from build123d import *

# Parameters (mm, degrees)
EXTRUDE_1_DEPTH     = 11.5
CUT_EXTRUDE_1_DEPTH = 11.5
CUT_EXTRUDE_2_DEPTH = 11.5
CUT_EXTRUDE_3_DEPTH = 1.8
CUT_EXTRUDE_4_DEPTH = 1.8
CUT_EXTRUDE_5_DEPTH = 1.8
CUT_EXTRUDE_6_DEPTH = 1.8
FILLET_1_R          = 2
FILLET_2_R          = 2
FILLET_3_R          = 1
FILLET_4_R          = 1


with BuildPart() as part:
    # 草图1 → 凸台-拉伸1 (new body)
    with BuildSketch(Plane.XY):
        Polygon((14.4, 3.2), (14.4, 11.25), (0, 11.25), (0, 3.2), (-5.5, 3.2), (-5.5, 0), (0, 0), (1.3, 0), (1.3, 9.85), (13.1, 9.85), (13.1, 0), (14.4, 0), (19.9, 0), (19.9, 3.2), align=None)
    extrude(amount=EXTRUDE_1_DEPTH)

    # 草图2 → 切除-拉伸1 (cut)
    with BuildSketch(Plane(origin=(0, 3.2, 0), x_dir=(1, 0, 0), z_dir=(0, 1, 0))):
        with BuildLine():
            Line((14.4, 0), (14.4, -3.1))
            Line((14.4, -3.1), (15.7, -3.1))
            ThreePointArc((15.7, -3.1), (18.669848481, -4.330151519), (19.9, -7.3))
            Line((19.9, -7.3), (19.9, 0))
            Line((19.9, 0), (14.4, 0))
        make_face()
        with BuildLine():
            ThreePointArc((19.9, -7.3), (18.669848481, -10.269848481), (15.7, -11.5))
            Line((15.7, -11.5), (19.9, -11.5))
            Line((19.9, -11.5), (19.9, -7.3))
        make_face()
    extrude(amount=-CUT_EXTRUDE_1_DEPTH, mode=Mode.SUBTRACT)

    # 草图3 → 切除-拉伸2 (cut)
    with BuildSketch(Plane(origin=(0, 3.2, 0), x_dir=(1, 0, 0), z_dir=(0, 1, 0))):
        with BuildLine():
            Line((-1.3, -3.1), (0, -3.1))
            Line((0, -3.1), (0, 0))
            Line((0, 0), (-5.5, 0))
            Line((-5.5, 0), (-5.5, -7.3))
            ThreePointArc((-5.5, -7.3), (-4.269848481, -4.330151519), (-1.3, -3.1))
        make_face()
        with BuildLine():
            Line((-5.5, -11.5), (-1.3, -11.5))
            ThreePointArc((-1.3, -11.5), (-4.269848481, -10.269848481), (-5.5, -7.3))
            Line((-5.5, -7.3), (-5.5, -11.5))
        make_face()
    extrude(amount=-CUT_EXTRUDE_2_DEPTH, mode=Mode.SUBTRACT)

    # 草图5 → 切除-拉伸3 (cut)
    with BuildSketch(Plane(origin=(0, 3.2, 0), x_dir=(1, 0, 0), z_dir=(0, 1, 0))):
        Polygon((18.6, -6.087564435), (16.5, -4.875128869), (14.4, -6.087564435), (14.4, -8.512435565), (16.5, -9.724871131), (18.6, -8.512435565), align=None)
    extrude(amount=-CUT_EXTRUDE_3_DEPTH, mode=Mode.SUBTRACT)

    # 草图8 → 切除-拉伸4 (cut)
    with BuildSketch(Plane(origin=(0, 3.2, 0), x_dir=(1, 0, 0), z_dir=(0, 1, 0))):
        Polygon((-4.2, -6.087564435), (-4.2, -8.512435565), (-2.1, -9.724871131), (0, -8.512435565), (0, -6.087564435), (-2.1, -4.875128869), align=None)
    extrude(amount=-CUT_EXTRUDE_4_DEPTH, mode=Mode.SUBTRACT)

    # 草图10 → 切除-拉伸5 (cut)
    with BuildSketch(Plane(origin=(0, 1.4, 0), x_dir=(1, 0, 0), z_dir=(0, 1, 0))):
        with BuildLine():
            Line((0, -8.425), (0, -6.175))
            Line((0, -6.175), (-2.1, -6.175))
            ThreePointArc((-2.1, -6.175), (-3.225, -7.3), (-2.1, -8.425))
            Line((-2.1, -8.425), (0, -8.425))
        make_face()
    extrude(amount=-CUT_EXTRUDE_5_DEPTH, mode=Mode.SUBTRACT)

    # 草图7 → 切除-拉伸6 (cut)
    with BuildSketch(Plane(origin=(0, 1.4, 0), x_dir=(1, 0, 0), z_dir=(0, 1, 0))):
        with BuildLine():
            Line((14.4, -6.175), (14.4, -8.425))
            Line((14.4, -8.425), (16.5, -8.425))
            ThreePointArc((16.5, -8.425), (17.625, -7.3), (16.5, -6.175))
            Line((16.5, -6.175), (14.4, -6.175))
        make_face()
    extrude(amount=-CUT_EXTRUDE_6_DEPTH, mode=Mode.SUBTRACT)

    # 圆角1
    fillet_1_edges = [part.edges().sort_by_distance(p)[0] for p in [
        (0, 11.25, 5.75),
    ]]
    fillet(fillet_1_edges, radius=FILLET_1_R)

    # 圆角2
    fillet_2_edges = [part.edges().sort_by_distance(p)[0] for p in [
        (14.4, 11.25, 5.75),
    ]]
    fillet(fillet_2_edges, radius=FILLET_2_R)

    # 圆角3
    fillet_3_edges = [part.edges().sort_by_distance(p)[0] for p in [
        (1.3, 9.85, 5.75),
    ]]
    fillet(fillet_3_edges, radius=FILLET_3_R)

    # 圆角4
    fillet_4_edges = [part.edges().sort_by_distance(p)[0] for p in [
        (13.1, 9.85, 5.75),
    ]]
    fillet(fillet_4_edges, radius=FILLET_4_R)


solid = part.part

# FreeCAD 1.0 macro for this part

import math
import FreeCAD as App
import Part
import Sketcher
Q = App.Units.Quantity


def edges_at(feature, points):
    """Names of the edges that pass closest to the given points."""
    edges = feature.Shape.Edges
    near = lambda p: min(range(len(edges)), key=lambda i: edges[i].distToShape(Part.Vertex(*p))[0])
    return sorted({f"Edge{near(p) + 1}" for p in points})

doc = App.newDocument("Part")
body = doc.addObject("PartDesign::Body", "Body")

# Sketch on XY plane
sketch1 = doc.addObject("Sketcher::SketchObject", "Sketch")
body.addObject(sketch1)
sketch1.AttachmentSupport = (doc.XY_Plane, [""])
sketch1.MapMode = "FlatFace"
sketch1.addGeometry([
    Part.LineSegment(App.Vector(14.4, 3.2, 0), App.Vector(14.4, 11.2, 0)),  # 0
    Part.LineSegment(App.Vector(14.4, 11.2, 0), App.Vector(0, 11.2, 0)),  # 1
    Part.LineSegment(App.Vector(0, 11.2, 0), App.Vector(0, 3.2, 0)),  # 2
    Part.LineSegment(App.Vector(0, 3.2, 0), App.Vector(-5.5, 3.2, 0)),  # 3
    Part.LineSegment(App.Vector(-5.5, 3.2, 0), App.Vector(-5.5, 0, 0)),  # 4
    Part.LineSegment(App.Vector(-5.5, 0, 0), App.Vector(1.3, 0, 0)),  # 5
    Part.LineSegment(App.Vector(1.3, 0, 0), App.Vector(1.3, 9.8, 0)),  # 6
    Part.LineSegment(App.Vector(1.3, 9.8, 0), App.Vector(13.1, 9.8, 0)),  # 7
    Part.LineSegment(App.Vector(13.1, 9.8, 0), App.Vector(13.1, 0, 0)),  # 8
    Part.LineSegment(App.Vector(13.1, 0, 0), App.Vector(19.9, 0, 0)),  # 9
    Part.LineSegment(App.Vector(19.9, 0, 0), App.Vector(19.9, 3.2, 0)),  # 10
    Part.LineSegment(App.Vector(19.9, 3.2, 0), App.Vector(14.4, 3.2, 0)),  # 11
], False)
sketch1.addConstraint([
    Sketcher.Constraint("Coincident", 0, 2, 1, 1),
    Sketcher.Constraint("Coincident", 1, 2, 2, 1),
    Sketcher.Constraint("Coincident", 2, 2, 3, 1),
    Sketcher.Constraint("Coincident", 3, 2, 4, 1),
    Sketcher.Constraint("Coincident", 4, 2, 5, 1),
    Sketcher.Constraint("Coincident", 5, 2, 6, 1),
    Sketcher.Constraint("Coincident", 6, 2, 7, 1),
    Sketcher.Constraint("Coincident", 7, 2, 8, 1),
    Sketcher.Constraint("Coincident", 8, 2, 9, 1),
    Sketcher.Constraint("Coincident", 9, 2, 10, 1),
    Sketcher.Constraint("Coincident", 10, 2, 11, 1),
    Sketcher.Constraint("Coincident", 11, 2, 0, 1),
    Sketcher.Constraint("Vertical", 0),
    Sketcher.Constraint("Horizontal", 1),
    Sketcher.Constraint("Vertical", 2),
    Sketcher.Constraint("Horizontal", 3),
    Sketcher.Constraint("Vertical", 4),
    Sketcher.Constraint("Horizontal", 5),
    Sketcher.Constraint("Vertical", 6),
    Sketcher.Constraint("Horizontal", 7),
    Sketcher.Constraint("Vertical", 8),
    Sketcher.Constraint("Horizontal", 9),
    Sketcher.Constraint("Vertical", 10),
    Sketcher.Constraint("Horizontal", 11),
    Sketcher.Constraint("PointOnObject", 1, 2, -2),
    Sketcher.Constraint("PointOnObject", 4, 2, -1),
    Sketcher.Constraint("PointOnObject", 8, 2, -1),
    Sketcher.Constraint("Horizontal", 3, 2, 10, 2),
    Sketcher.Constraint("Equal", 5, 9),
    Sketcher.Constraint("Equal", 3, 11),
    Sketcher.Constraint("DistanceX", 1, 2, 1, 1, 14.4),
    Sketcher.Constraint("DistanceX", 3, 2, 3, 1, 5.5),
    Sketcher.Constraint("DistanceX", 5, 1, 5, 2, 6.8),
    Sketcher.Constraint("DistanceY", 4, 2, 4, 1, 3.2),
    Sketcher.Constraint("DistanceY", 0, 1, 0, 2, 8.05),
    Sketcher.Constraint("DistanceY", 6, 1, 6, 2, 9.85),
])
pad1 = doc.addObject("PartDesign::Pad", "Pad")
body.addObject(pad1)
pad1.Profile = sketch1
pad1.Length = 11.5

# Sketch on XZ plane
sketch2 = doc.addObject("Sketcher::SketchObject", "Sketch001")
body.addObject(sketch2)
sketch2.AttachmentSupport = (doc.XZ_Plane, [""])
sketch2.MapMode = "FlatFace"
sketch2.AttachmentOffset = App.Placement(App.Vector(0, 0, -3.2), App.Rotation())
sketch2.addGeometry([
    Part.LineSegment(App.Vector(14.4, 0, 0), App.Vector(14.4, 3.1, 0)),  # 0
    Part.LineSegment(App.Vector(14.4, 3.1, 0), App.Vector(15.7, 3.1, 0)),  # 1
    Part.ArcOfCircle(Part.Circle(App.Vector(15.7, 7.3, 0), App.Vector(0, 0, 1), 4.2), math.radians(-90), math.radians(0)),  # 2
    Part.LineSegment(App.Vector(19.9, 7.3, 0), App.Vector(19.9, 0, 0)),  # 3
    Part.LineSegment(App.Vector(19.9, 0, 0), App.Vector(14.4, 0, 0)),  # 4
    Part.ArcOfCircle(Part.Circle(App.Vector(15.7, 7.3, 0), App.Vector(0, 0, 1), 4.2), math.radians(0), math.radians(90)),  # 5
    Part.LineSegment(App.Vector(15.7, 11.5, 0), App.Vector(19.9, 11.5, 0)),  # 6
    Part.LineSegment(App.Vector(19.9, 11.5, 0), App.Vector(19.9, 7.3, 0)),  # 7
], False)
sketch2.addConstraint([
    Sketcher.Constraint("Coincident", 0, 2, 1, 1),
    Sketcher.Constraint("Tangent", 1, 2, 2, 1),
    Sketcher.Constraint("Tangent", 2, 2, 3, 1),
    Sketcher.Constraint("Coincident", 3, 2, 4, 1),
    Sketcher.Constraint("Coincident", 4, 2, 0, 1),
    Sketcher.Constraint("Tangent", 5, 2, 6, 1),
    Sketcher.Constraint("Coincident", 6, 2, 7, 1),
    Sketcher.Constraint("Tangent", 7, 2, 5, 1),
    Sketcher.Constraint("Vertical", 0),
    Sketcher.Constraint("Horizontal", 1),
    Sketcher.Constraint("Vertical", 3),
    Sketcher.Constraint("Horizontal", 4),
    Sketcher.Constraint("Horizontal", 6),
    Sketcher.Constraint("Vertical", 7),
    Sketcher.Constraint("Coincident", 5, 3, 2, 3),
    Sketcher.Constraint("Equal", 2, 5),
    Sketcher.Constraint("PointOnObject", 3, 2, -1),
    Sketcher.Constraint("Radius", 2, 4.2),
    Sketcher.Constraint("DistanceX", 1, 1, 1, 2, 1.3),
    Sketcher.Constraint("DistanceY", 0, 1, 0, 2, 3.1),
    Sketcher.Constraint("DistanceX", -1, 1, 2, 3, 15.7),
])
pocket1 = doc.addObject("PartDesign::Pocket", "Pocket")
body.addObject(pocket1)
pocket1.Profile = sketch2
pocket1.Length = 11.5
pocket1.Reversed = True

# Sketch on XZ plane
sketch3 = doc.addObject("Sketcher::SketchObject", "Sketch002")
body.addObject(sketch3)
sketch3.AttachmentSupport = (doc.XZ_Plane, [""])
sketch3.MapMode = "FlatFace"
sketch3.AttachmentOffset = App.Placement(App.Vector(0, 0, -3.2), App.Rotation())
sketch3.addGeometry([
    Part.LineSegment(App.Vector(-1.3, 3.1, 0), App.Vector(0, 3.1, 0)),  # 0
    Part.LineSegment(App.Vector(0, 3.1, 0), App.Vector(0, 0, 0)),  # 1
    Part.LineSegment(App.Vector(0, 0, 0), App.Vector(-5.5, 0, 0)),  # 2
    Part.LineSegment(App.Vector(-5.5, 0, 0), App.Vector(-5.5, 7.3, 0)),  # 3
    Part.ArcOfCircle(Part.Circle(App.Vector(-1.3, 7.3, 0), App.Vector(0, 0, 1), 4.2), math.radians(180), math.radians(270)),  # 4
    Part.LineSegment(App.Vector(-5.5, 11.5, 0), App.Vector(-1.3, 11.5, 0)),  # 5
    Part.ArcOfCircle(Part.Circle(App.Vector(-1.3, 7.3, 0), App.Vector(0, 0, 1), 4.2), math.radians(90), math.radians(180)),  # 6
    Part.LineSegment(App.Vector(-5.5, 7.3, 0), App.Vector(-5.5, 11.5, 0)),  # 7
], False)
sketch3.addConstraint([
    Sketcher.Constraint("Coincident", 0, 2, 1, 1),
    Sketcher.Constraint("Coincident", 1, 2, 2, 1),
    Sketcher.Constraint("Coincident", 2, 2, 3, 1),
    Sketcher.Constraint("Tangent", 3, 2, 4, 1),
    Sketcher.Constraint("Tangent", 4, 2, 0, 1),
    Sketcher.Constraint("Tangent", 5, 2, 6, 1),
    Sketcher.Constraint("Tangent", 6, 2, 7, 1),
    Sketcher.Constraint("Coincident", 7, 2, 5, 1),
    Sketcher.Constraint("Horizontal", 0),
    Sketcher.Constraint("Vertical", 1),
    Sketcher.Constraint("Horizontal", 2),
    Sketcher.Constraint("Vertical", 3),
    Sketcher.Constraint("Horizontal", 5),
    Sketcher.Constraint("Vertical", 7),
    Sketcher.Constraint("Coincident", 1, 2, -1, 1),
    Sketcher.Constraint("Coincident", 6, 3, 4, 3),
    Sketcher.Constraint("Equal", 4, 6),
    Sketcher.Constraint("Radius", 4, 4.2),
    Sketcher.Constraint("DistanceX", 0, 1, 0, 2, 1.3),
    Sketcher.Constraint("DistanceY", 1, 2, 1, 1, 3.1),
])
pocket2 = doc.addObject("PartDesign::Pocket", "Pocket001")
body.addObject(pocket2)
pocket2.Profile = sketch3
pocket2.Length = 11.5
pocket2.Reversed = True

# Sketch on XZ plane
sketch4 = doc.addObject("Sketcher::SketchObject", "Sketch003")
body.addObject(sketch4)
sketch4.AttachmentSupport = (doc.XZ_Plane, [""])
sketch4.MapMode = "FlatFace"
sketch4.AttachmentOffset = App.Placement(App.Vector(0, 0, -3.2), App.Rotation())
sketch4.addGeometry([
    Part.LineSegment(App.Vector(18.6, 6.1, 0), App.Vector(16.5, 4.9, 0)),  # 0
    Part.LineSegment(App.Vector(16.5, 4.9, 0), App.Vector(14.4, 6.1, 0)),  # 1
    Part.LineSegment(App.Vector(14.4, 6.1, 0), App.Vector(14.4, 8.5, 0)),  # 2
    Part.LineSegment(App.Vector(14.4, 8.5, 0), App.Vector(16.5, 9.7, 0)),  # 3
    Part.LineSegment(App.Vector(16.5, 9.7, 0), App.Vector(18.6, 8.5, 0)),  # 4
    Part.LineSegment(App.Vector(18.6, 8.5, 0), App.Vector(18.6, 6.1, 0)),  # 5
], False)
sketch4.addConstraint([
    Sketcher.Constraint("Coincident", 0, 2, 1, 1),
    Sketcher.Constraint("Coincident", 1, 2, 2, 1),
    Sketcher.Constraint("Coincident", 2, 2, 3, 1),
    Sketcher.Constraint("Coincident", 3, 2, 4, 1),
    Sketcher.Constraint("Coincident", 4, 2, 5, 1),
    Sketcher.Constraint("Coincident", 5, 2, 0, 1),
    Sketcher.Constraint("Vertical", 2),
    Sketcher.Constraint("Vertical", 5),
    Sketcher.Constraint("Parallel", 0, 3),
    Sketcher.Constraint("Parallel", 1, 4),
    Sketcher.Constraint("Horizontal", 2, 2, 4, 2),
    Sketcher.Constraint("Horizontal", 1, 2, 5, 2),
    Sketcher.Constraint("Vertical", 0, 2, 3, 2),
    Sketcher.Constraint("Angle", 0, Q("-150 deg")),
    Sketcher.Constraint("DistanceX", -1, 1, 0, 2, 16.5),
    Sketcher.Constraint("DistanceX", -1, 1, 1, 2, 14.4),
    Sketcher.Constraint("DistanceY", 2, 1, 2, 2, 2.424871),
    Sketcher.Constraint("DistanceY", -1, 1, 0, 2, 4.875129),
])
pocket3 = doc.addObject("PartDesign::Pocket", "Pocket002")
body.addObject(pocket3)
pocket3.Profile = sketch4
pocket3.Length = 1.8
pocket3.Reversed = True

# Sketch on XZ plane
sketch5 = doc.addObject("Sketcher::SketchObject", "Sketch004")
body.addObject(sketch5)
sketch5.AttachmentSupport = (doc.XZ_Plane, [""])
sketch5.MapMode = "FlatFace"
sketch5.AttachmentOffset = App.Placement(App.Vector(0, 0, -3.2), App.Rotation())
sketch5.addGeometry([
    Part.LineSegment(App.Vector(-4.2, 6.1, 0), App.Vector(-4.2, 8.5, 0)),  # 0
    Part.LineSegment(App.Vector(-4.2, 8.5, 0), App.Vector(-2.1, 9.7, 0)),  # 1
    Part.LineSegment(App.Vector(-2.1, 9.7, 0), App.Vector(0, 8.5, 0)),  # 2
    Part.LineSegment(App.Vector(0, 8.5, 0), App.Vector(0, 6.1, 0)),  # 3
    Part.LineSegment(App.Vector(0, 6.1, 0), App.Vector(-2.1, 4.9, 0)),  # 4
    Part.LineSegment(App.Vector(-2.1, 4.9, 0), App.Vector(-4.2, 6.1, 0)),  # 5
], False)
sketch5.addConstraint([
    Sketcher.Constraint("Coincident", 0, 2, 1, 1),
    Sketcher.Constraint("Coincident", 1, 2, 2, 1),
    Sketcher.Constraint("Coincident", 2, 2, 3, 1),
    Sketcher.Constraint("Coincident", 3, 2, 4, 1),
    Sketcher.Constraint("Coincident", 4, 2, 5, 1),
    Sketcher.Constraint("Coincident", 5, 2, 0, 1),
    Sketcher.Constraint("Vertical", 0),
    Sketcher.Constraint("Vertical", 3),
    Sketcher.Constraint("PointOnObject", 2, 2, -2),
    Sketcher.Constraint("Parallel", 1, 4),
    Sketcher.Constraint("Parallel", 2, 5),
    Sketcher.Constraint("Horizontal", 0, 2, 2, 2),
    Sketcher.Constraint("Horizontal", 3, 2, 5, 2),
    Sketcher.Constraint("Vertical", 1, 2, 4, 2),
    Sketcher.Constraint("Angle", 1, Q("30 deg")),
    Sketcher.Constraint("DistanceX", 0, 2, -1, 1, 4.2),
    Sketcher.Constraint("DistanceY", 0, 1, 0, 2, 2.424871),
    Sketcher.Constraint("DistanceY", -1, 1, 1, 2, 9.724871),
])
pocket4 = doc.addObject("PartDesign::Pocket", "Pocket003")
body.addObject(pocket4)
pocket4.Profile = sketch5
pocket4.Length = 1.8
pocket4.Reversed = True

# Sketch on XZ plane
sketch6 = doc.addObject("Sketcher::SketchObject", "Sketch005")
body.addObject(sketch6)
sketch6.AttachmentSupport = (doc.XZ_Plane, [""])
sketch6.MapMode = "FlatFace"
sketch6.AttachmentOffset = App.Placement(App.Vector(0, 0, -1.4), App.Rotation())
sketch6.addGeometry([
    Part.LineSegment(App.Vector(0, 8.4, 0), App.Vector(0, 6.2, 0)),
    Part.LineSegment(App.Vector(0, 6.2, 0), App.Vector(-2.1, 6.2, 0)),
    Part.ArcOfCircle(Part.Circle(App.Vector(-2.1, 7.3, 0), App.Vector(0, 0, 1), 1.1), math.radians(90), math.radians(270)),
    Part.LineSegment(App.Vector(-2.1, 8.4, 0), App.Vector(0, 8.4, 0)),
], False)
sketch6.addConstraint([
    Sketcher.Constraint("Coincident", 0, 2, 1, 1),
    Sketcher.Constraint("Tangent", 1, 2, 2, 2),
    Sketcher.Constraint("Tangent", 2, 1, 3, 1),
    Sketcher.Constraint("Coincident", 3, 2, 0, 1),
    Sketcher.Constraint("Vertical", 0),
    Sketcher.Constraint("Horizontal", 1),
    Sketcher.Constraint("Horizontal", 3),
    Sketcher.Constraint("PointOnObject", 0, 2, -2),
    Sketcher.Constraint("DistanceX", 1, 2, 1, 1, 2.1),
    Sketcher.Constraint("Radius", 2, 1.125),
    Sketcher.Constraint("DistanceY", -1, 1, 2, 3, 7.3),
])
pocket5 = doc.addObject("PartDesign::Pocket", "Pocket004")
body.addObject(pocket5)
pocket5.Profile = sketch6
pocket5.Length = 1.8
pocket5.Reversed = True

# Sketch on XZ plane
sketch7 = doc.addObject("Sketcher::SketchObject", "Sketch006")
body.addObject(sketch7)
sketch7.AttachmentSupport = (doc.XZ_Plane, [""])
sketch7.MapMode = "FlatFace"
sketch7.AttachmentOffset = App.Placement(App.Vector(0, 0, -1.4), App.Rotation())
sketch7.addGeometry([
    Part.LineSegment(App.Vector(14.4, 6.2, 0), App.Vector(14.4, 8.4, 0)),
    Part.LineSegment(App.Vector(14.4, 8.4, 0), App.Vector(16.5, 8.4, 0)),
    Part.ArcOfCircle(Part.Circle(App.Vector(16.5, 7.3, 0), App.Vector(0, 0, 1), 1.1), math.radians(-90), math.radians(90)),
    Part.LineSegment(App.Vector(16.5, 6.2, 0), App.Vector(14.4, 6.2, 0)),
], False)
sketch7.addConstraint([
    Sketcher.Constraint("Coincident", 0, 2, 1, 1),
    Sketcher.Constraint("Tangent", 1, 2, 2, 2),
    Sketcher.Constraint("Tangent", 2, 1, 3, 1),
    Sketcher.Constraint("Coincident", 3, 2, 0, 1),
    Sketcher.Constraint("Vertical", 0),
    Sketcher.Constraint("Horizontal", 1),
    Sketcher.Constraint("Horizontal", 3),
    Sketcher.Constraint("DistanceX", 1, 1, 1, 2, 2.1),
    Sketcher.Constraint("Radius", 2, 1.125),
    Sketcher.Constraint("DistanceX", -1, 1, 2, 3, 16.5),
    Sketcher.Constraint("DistanceY", -1, 1, 2, 3, 7.3),
])
pocket6 = doc.addObject("PartDesign::Pocket", "Pocket005")
body.addObject(pocket6)
pocket6.Profile = sketch7
pocket6.Length = 1.8
pocket6.Reversed = True
doc.recompute()

fillet = doc.addObject("PartDesign::Fillet", "Fillet")
body.addObject(fillet)
fillet.Base = (pocket6, edges_at(pocket6, [(0, 11.25, 5.75)]))
fillet.Radius = 2
doc.recompute()

fillet2 = doc.addObject("PartDesign::Fillet", "Fillet001")
body.addObject(fillet2)
fillet2.Base = (fillet, edges_at(fillet, [(14.4, 11.25, 5.75)]))
fillet2.Radius = 2
doc.recompute()

fillet3 = doc.addObject("PartDesign::Fillet", "Fillet002")
body.addObject(fillet3)
fillet3.Base = (fillet2, edges_at(fillet2, [(1.3, 9.85, 5.75)]))
fillet3.Radius = 1
doc.recompute()

fillet4 = doc.addObject("PartDesign::Fillet", "Fillet003")
body.addObject(fillet4)
fillet4.Base = (fillet3, edges_at(fillet3, [(13.1, 9.85, 5.75)]))
fillet4.Radius = 1

doc.recompute()
